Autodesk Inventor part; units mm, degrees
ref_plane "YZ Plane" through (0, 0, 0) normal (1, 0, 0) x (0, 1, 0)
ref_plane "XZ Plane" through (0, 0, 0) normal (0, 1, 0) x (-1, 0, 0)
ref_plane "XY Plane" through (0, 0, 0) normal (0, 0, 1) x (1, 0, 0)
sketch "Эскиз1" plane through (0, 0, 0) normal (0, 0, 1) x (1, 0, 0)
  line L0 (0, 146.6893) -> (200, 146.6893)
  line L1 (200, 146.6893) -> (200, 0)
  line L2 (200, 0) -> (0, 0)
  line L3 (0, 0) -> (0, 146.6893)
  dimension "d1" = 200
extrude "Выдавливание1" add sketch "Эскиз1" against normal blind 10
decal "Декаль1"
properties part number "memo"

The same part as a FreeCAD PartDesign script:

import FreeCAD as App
import Part
import Sketcher
from FreeCAD import Vector
Q = App.Units.Quantity


def add_polygon(sketch, points):
    """Adds a closed chain of lines whose ends are joined by coincident constraints."""
    first, n = sketch.GeometryCount, len(points)
    for a, b in zip(points, points[1:] + points[:1]):
        sketch.addGeometry(Part.LineSegment(App.Vector(*a, 0), App.Vector(*b, 0)), False)
    for i in range(n):
        sketch.addConstraint(Sketcher.Constraint("Coincident", first + i, 2, first + (i + 1) % n, 1))

doc = App.newDocument("Part")
body = doc.addObject("PartDesign::Body", "Body")

# Sketch on XY plane
sketch1 = doc.addObject("Sketcher::SketchObject", "Sketch")
body.addObject(sketch1)
sketch1.AttachmentSupport = (doc.XY_Plane, [""])
sketch1.MapMode = "FlatFace"
add_polygon(sketch1, [(200, 147), (0, 147), (0, 0), (200, 0)])  # lines 0-3
sketch1.addConstraint(Sketcher.Constraint("Horizontal", 0))
sketch1.addConstraint(Sketcher.Constraint("Vertical", 1))
sketch1.addConstraint(Sketcher.Constraint("Horizontal", 2))
sketch1.addConstraint(Sketcher.Constraint("Vertical", 3))
sketch1.addConstraint(Sketcher.Constraint("Coincident", 1, 2, -1, 1))
sketch1.addConstraint(Sketcher.Constraint("DistanceX", 0, 2, 0, 1, Q("200 mm")))
sketch1.addConstraint(Sketcher.Constraint("DistanceY", 1, 2, 1, 1, Q("146.6893 mm")))
pad1 = doc.addObject("PartDesign::Pad", "Pad")
body.addObject(pad1)
pad1.Profile = sketch1
pad1.Length = 10
pad1.Reversed = True

doc.recompute()
